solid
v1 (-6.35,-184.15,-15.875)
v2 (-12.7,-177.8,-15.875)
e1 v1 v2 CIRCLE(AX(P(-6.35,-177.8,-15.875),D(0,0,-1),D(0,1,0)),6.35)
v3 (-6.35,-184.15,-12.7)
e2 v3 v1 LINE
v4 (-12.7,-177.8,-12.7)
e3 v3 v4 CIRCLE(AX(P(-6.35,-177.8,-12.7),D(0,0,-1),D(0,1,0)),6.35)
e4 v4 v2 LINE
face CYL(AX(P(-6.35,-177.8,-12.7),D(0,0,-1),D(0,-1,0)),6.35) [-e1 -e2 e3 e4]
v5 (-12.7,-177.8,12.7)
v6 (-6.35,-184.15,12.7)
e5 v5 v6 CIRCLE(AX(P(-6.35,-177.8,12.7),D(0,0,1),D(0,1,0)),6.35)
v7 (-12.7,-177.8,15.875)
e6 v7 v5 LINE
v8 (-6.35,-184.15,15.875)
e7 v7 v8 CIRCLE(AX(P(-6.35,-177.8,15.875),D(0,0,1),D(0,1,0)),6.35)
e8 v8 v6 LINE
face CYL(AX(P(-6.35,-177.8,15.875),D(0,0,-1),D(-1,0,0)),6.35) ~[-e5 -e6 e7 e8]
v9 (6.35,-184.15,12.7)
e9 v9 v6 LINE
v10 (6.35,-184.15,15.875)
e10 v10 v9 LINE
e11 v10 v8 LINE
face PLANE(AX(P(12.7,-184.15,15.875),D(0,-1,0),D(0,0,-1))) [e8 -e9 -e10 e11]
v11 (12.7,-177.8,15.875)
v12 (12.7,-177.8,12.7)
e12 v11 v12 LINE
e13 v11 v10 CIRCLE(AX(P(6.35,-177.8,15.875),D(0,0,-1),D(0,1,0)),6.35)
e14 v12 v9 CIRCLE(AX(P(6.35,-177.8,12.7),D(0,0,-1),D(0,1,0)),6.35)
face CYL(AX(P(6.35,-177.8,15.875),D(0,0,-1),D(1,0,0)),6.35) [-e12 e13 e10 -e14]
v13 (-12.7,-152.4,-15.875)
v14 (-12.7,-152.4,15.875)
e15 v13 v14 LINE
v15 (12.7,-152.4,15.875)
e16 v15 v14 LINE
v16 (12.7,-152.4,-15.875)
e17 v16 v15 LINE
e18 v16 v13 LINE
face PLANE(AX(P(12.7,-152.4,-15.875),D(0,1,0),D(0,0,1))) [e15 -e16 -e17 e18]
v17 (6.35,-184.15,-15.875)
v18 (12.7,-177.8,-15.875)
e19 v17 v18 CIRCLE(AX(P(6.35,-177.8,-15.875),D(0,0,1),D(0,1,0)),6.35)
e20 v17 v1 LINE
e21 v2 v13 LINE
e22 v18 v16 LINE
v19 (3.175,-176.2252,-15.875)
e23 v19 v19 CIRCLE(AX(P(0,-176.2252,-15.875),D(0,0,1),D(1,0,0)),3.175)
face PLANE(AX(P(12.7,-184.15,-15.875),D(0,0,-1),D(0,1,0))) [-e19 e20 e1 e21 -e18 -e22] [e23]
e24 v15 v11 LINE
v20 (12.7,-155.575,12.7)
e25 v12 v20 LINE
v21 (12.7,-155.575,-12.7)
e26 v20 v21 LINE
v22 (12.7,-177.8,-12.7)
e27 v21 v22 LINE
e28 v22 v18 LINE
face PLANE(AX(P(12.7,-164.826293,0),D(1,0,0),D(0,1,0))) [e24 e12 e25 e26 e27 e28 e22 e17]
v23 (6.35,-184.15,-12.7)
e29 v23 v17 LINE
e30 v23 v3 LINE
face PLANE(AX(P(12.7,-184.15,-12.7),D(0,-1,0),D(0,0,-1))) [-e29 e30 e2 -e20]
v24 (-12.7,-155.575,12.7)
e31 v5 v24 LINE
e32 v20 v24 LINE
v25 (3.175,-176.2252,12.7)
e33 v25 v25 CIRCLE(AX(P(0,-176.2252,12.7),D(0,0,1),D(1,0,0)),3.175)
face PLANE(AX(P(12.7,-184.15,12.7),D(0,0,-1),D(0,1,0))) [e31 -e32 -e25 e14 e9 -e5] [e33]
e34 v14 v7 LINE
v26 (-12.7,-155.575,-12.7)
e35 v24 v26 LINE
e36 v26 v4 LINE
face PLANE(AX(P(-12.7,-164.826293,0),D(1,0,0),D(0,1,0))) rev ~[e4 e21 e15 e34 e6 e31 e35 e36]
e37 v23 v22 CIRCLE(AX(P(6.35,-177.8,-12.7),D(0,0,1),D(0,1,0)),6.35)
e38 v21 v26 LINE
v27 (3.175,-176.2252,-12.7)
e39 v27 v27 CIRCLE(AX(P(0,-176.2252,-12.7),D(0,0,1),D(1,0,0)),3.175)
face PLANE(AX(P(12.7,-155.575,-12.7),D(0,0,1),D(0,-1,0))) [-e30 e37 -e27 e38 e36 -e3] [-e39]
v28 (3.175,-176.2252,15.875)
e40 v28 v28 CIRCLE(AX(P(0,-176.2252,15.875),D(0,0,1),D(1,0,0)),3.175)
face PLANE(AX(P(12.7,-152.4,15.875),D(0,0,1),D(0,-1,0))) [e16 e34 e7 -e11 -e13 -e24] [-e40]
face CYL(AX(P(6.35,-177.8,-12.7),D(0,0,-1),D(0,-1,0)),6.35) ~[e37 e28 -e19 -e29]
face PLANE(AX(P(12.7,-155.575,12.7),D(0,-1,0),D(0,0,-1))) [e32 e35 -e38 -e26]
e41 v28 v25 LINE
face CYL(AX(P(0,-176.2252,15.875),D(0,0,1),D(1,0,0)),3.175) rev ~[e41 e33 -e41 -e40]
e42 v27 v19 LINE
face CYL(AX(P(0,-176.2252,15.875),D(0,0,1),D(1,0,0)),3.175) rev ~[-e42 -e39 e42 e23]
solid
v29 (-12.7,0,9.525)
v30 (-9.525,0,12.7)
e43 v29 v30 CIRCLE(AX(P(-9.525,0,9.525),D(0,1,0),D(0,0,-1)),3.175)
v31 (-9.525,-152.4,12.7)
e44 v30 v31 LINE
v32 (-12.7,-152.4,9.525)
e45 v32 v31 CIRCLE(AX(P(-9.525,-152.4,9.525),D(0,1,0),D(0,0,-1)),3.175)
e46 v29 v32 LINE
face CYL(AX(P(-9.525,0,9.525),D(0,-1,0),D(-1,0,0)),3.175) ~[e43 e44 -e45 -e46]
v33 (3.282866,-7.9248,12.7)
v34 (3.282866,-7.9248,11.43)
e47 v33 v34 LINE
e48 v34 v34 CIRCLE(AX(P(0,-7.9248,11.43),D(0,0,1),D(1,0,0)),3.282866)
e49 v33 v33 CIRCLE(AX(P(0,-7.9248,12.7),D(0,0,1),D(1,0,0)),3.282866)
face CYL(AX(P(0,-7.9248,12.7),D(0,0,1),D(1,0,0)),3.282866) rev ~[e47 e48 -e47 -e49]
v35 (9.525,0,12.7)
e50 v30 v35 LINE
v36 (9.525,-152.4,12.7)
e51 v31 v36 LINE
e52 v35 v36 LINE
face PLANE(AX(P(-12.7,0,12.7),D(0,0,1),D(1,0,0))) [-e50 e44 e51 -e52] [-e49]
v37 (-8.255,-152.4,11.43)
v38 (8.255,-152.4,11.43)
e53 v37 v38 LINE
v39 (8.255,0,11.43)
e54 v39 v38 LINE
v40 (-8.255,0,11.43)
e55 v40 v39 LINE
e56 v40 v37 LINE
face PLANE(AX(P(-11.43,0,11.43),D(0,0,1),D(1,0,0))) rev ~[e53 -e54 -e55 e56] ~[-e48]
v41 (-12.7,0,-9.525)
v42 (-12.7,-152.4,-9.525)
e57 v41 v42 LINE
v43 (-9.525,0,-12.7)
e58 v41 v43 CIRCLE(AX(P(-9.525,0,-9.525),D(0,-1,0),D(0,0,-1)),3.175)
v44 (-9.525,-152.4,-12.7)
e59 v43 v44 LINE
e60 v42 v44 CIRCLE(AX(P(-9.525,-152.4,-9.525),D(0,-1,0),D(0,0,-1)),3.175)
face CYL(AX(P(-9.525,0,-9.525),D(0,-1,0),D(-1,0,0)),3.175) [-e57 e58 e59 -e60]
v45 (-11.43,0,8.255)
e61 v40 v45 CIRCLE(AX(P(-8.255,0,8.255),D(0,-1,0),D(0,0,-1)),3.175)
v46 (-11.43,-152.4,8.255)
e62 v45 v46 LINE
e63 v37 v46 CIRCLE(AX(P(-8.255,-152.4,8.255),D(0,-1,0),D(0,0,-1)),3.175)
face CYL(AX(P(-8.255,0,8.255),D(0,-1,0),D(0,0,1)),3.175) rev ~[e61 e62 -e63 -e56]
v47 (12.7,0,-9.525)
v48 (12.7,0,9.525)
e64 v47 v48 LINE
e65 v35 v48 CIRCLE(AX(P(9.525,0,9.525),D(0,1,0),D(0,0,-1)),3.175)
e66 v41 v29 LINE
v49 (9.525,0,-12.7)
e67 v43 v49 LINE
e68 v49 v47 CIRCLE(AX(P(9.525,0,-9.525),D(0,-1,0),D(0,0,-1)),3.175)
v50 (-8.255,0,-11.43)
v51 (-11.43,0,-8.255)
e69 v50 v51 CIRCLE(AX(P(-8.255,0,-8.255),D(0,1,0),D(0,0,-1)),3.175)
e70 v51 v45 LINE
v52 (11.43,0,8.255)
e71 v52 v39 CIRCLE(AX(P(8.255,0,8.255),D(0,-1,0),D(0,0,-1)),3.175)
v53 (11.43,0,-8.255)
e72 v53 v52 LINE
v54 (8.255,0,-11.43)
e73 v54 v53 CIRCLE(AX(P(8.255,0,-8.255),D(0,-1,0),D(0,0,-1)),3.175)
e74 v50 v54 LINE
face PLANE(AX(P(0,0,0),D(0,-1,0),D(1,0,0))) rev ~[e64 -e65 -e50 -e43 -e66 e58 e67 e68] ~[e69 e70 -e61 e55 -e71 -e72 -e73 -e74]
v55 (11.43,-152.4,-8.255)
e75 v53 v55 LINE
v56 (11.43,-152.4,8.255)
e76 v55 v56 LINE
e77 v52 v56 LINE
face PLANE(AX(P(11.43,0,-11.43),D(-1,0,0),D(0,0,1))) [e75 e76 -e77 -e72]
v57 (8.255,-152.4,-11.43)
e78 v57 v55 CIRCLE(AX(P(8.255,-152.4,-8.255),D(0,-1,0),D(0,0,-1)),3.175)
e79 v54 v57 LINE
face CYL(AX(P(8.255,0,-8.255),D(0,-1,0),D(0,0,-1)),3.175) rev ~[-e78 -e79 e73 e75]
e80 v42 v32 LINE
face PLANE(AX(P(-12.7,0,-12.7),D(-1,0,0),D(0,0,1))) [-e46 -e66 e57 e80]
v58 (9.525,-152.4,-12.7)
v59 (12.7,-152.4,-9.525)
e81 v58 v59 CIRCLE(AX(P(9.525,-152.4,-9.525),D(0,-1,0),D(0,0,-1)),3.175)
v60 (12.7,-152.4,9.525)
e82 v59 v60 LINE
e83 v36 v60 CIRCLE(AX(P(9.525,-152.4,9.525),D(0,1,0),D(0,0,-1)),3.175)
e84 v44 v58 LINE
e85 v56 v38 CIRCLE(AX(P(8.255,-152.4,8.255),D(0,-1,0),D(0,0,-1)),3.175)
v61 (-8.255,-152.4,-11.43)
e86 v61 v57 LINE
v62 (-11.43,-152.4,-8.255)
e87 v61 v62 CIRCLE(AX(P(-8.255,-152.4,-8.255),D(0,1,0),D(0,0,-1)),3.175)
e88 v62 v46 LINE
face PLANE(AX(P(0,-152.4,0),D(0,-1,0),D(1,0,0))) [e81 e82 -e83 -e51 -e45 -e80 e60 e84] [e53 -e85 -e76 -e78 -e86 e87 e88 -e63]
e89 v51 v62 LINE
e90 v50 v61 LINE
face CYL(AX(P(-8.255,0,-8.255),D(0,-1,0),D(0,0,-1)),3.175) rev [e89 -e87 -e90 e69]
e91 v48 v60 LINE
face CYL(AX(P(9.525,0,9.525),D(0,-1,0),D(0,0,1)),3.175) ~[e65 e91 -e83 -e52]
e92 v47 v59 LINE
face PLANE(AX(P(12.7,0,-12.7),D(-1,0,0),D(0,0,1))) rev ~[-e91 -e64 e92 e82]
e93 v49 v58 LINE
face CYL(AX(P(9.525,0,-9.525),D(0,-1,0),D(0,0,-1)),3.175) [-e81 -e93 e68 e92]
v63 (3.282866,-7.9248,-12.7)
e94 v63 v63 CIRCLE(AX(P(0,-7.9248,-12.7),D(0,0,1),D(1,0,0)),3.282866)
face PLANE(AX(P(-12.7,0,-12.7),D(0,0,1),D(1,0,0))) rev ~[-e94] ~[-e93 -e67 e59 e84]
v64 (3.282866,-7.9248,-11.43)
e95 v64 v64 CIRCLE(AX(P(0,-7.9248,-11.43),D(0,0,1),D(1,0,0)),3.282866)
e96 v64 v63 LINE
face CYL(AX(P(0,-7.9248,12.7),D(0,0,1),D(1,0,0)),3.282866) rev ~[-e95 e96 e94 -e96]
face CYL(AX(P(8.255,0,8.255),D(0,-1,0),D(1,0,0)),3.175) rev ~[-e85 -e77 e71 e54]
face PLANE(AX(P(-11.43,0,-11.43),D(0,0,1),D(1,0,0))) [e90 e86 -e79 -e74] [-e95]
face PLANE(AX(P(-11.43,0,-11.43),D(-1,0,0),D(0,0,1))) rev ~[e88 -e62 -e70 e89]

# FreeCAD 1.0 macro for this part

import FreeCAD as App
import Part
import Sketcher

V = App.Vector
Q = App.Units.Quantity


def edges_at(feature, points):
    """Names of the edges that pass closest to the given points."""
    edges = feature.Shape.Edges
    near = lambda p: min(range(len(edges)), key=lambda i: edges[i].distToShape(Part.Vertex(*p))[0])
    return sorted({f"Edge{near(p) + 1}" for p in points})


def add_polygon(sketch, points):
    """Adds a closed chain of lines whose ends are joined by coincident constraints."""
    first, n = sketch.GeometryCount, len(points)
    for a, b in zip(points, points[1:] + points[:1]):
        sketch.addGeometry(Part.LineSegment(App.Vector(*a, 0), App.Vector(*b, 0)), False)
    for i in range(n):
        sketch.addConstraint(Sketcher.Constraint("Coincident", first + i, 2, first + (i + 1) % n, 1))

doc = App.newDocument("Part")
body = doc.addObject("PartDesign::Body", "Body")

sketch1 = body.newObject("Sketcher::SketchObject", "Sketch")
sketch1.AttachmentSupport = (doc.getObject("XZ_Plane"), [""])
sketch1.MapMode = "FlatFace"
add_polygon(sketch1, [(-13, 13), (-13, -13), (13, -13), (13, 13)])
add_polygon(sketch1, [(11, -11), (-11, -11), (-11, 11), (11, 11)])
sketch1.addConstraint([
    Sketcher.Constraint("Vertical", 0),
    Sketcher.Constraint("Horizontal", 1),
    Sketcher.Constraint("Vertical", 2),
    Sketcher.Constraint("Horizontal", 3),
    Sketcher.Constraint("Horizontal", 4),
    Sketcher.Constraint("Vertical", 5),
    Sketcher.Constraint("Horizontal", 6),
    Sketcher.Constraint("Vertical", 7),
    Sketcher.Constraint("Symmetric", 0, 2, 2, 2, -1, 1),
    Sketcher.Constraint("Symmetric", 4, 2, 6, 2, -1, 1),
    Sketcher.Constraint("Equal", 3, 0),
    Sketcher.Constraint("Equal", 6, 5),
    Sketcher.Constraint("DistanceX", 1, 1, 1, 2, Q("1 in")),
    Sketcher.Constraint("DistanceX", 4, 2, 4, 1, Q("0.9 in")),
])
pad1 = body.newObject("PartDesign::Pad", "Pad")
pad1.Profile = sketch1
pad1.Length = Q("6 in")
doc.recompute()

fillet = body.newObject("PartDesign::Fillet", "Fillet")
fillet.Base = (pad1, edges_at(pad1, [
    (12.7, -76.2, 12.7),
    (-12.7, -76.2, 12.7),
    (12.7, -76.2, -12.7),
    (-12.7, -76.2, -12.7),
    (11.43, -76.2, 11.43),
    (11.43, -76.2, -11.43),
    (-11.43, -76.2, 11.43),
    (-11.43, -76.2, -11.43),
]))
fillet.Radius = Q("0.125 in")

sketch2 = body.newObject("Sketcher::SketchObject", "Sketch001")
sketch2.AttachmentSupport = (doc.getObject("XY_Plane"), [""])
sketch2.MapMode = "FlatFace"
sketch2.AttachmentOffset = App.Placement(V(0, 0, 0.5 * 25.4), App.Rotation())
sketch2.addGeometry(Part.Circle(V(0, -7.9, 0), V(0, 0, 1), 3.3), False)
sketch2.addConstraint([
    Sketcher.Constraint("PointOnObject", 0, 3, -2),
    Sketcher.Constraint("Diameter", 0, 6.565732),
    Sketcher.Constraint("DistanceY", 0, 3, -1, 1, Q("0.312 in")),
])
pocket1 = body.newObject("PartDesign::Pocket", "Pocket")
pocket1.Profile = sketch2
pocket1.Type = "ThroughAll"
body2 = doc.addObject("PartDesign::Body", "Body001")

sketch3 = body2.newObject("Sketcher::SketchObject", "Sketch002")
sketch3.AttachmentSupport = (doc.getObject("YZ_Plane001"), [""])
sketch3.MapMode = "FlatFace"
sketch3.AttachmentOffset = App.Placement(V(0, 0, 0.5 * 25.4), App.Rotation())
add_polygon(sketch3, [(-184.2, -15.9), (-152.4, -15.9), (-152.4, 15.9), (-184.2, 15.9), (-184.2, 12.7), (-155.6, 12.7), (-155.6, -12.7), (-184.2, -12.7)])
sketch3.addConstraint([
    Sketcher.Constraint("Horizontal", 0),
    Sketcher.Constraint("Vertical", 1),
    Sketcher.Constraint("Horizontal", 2),
    Sketcher.Constraint("Vertical", 3),
    Sketcher.Constraint("Horizontal", 4),
    Sketcher.Constraint("Vertical", 5),
    Sketcher.Constraint("Horizontal", 6),
    Sketcher.Constraint("Vertical", 7),
    Sketcher.Constraint("Symmetric", 3, 2, 6, 2, -1),
    Sketcher.Constraint("Equal", 2, 1),
    Sketcher.Constraint("Equal", 3, 7),
    Sketcher.Constraint("DistanceY", 5, 2, 5, 1, Q("1 in")),
    Sketcher.Constraint("DistanceX", 0, 2, -1, 1, Q("6 in")),
    Sketcher.Constraint("DistanceX", 0, 1, 0, 2, Q("1.25 in")),
    Sketcher.Constraint("DistanceX", 4, 1, 4, 2, Q("1.125 in")),
])
pad2 = body2.newObject("PartDesign::Pad", "Pad001")
pad2.Profile = sketch3
pad2.Length = Q("1 in")
pad2.Reversed = True

sketch4 = body2.newObject("Sketcher::SketchObject", "Sketch003")
sketch4.AttachmentSupport = (doc.getObject("XY_Plane001"), [""])
sketch4.MapMode = "FlatFace"
sketch4.AttachmentOffset = App.Placement(V(0, 0, 0.625 * 25.4), App.Rotation())
sketch4.addGeometry(Part.Circle(V(0, -176.2, 0), V(0, 0, 1), 3.2), False)
sketch4.addConstraint([
    Sketcher.Constraint("PointOnObject", 0, 3, -2),
    Sketcher.Constraint("Diameter", 0, Q("0.25 in")),
    Sketcher.Constraint("DistanceY", 0, 3, -1, 1, Q("6.938 in")),
])
pocket2 = body2.newObject("PartDesign::Pocket", "Pocket001")
pocket2.Profile = sketch4
pocket2.Type = "ThroughAll"
doc.recompute()

fillet2 = body2.newObject("PartDesign::Fillet", "Fillet001")
fillet2.Base = (pocket2, edges_at(pocket2, [
    (12.7, -184.15, 14.287),
    (-12.7, -184.15, 14.287),
    (12.7, -184.15, -14.287),
    (-12.7, -184.15, -14.287),
]))
fillet2.Radius = Q("0.25 in")

doc.recompute()
